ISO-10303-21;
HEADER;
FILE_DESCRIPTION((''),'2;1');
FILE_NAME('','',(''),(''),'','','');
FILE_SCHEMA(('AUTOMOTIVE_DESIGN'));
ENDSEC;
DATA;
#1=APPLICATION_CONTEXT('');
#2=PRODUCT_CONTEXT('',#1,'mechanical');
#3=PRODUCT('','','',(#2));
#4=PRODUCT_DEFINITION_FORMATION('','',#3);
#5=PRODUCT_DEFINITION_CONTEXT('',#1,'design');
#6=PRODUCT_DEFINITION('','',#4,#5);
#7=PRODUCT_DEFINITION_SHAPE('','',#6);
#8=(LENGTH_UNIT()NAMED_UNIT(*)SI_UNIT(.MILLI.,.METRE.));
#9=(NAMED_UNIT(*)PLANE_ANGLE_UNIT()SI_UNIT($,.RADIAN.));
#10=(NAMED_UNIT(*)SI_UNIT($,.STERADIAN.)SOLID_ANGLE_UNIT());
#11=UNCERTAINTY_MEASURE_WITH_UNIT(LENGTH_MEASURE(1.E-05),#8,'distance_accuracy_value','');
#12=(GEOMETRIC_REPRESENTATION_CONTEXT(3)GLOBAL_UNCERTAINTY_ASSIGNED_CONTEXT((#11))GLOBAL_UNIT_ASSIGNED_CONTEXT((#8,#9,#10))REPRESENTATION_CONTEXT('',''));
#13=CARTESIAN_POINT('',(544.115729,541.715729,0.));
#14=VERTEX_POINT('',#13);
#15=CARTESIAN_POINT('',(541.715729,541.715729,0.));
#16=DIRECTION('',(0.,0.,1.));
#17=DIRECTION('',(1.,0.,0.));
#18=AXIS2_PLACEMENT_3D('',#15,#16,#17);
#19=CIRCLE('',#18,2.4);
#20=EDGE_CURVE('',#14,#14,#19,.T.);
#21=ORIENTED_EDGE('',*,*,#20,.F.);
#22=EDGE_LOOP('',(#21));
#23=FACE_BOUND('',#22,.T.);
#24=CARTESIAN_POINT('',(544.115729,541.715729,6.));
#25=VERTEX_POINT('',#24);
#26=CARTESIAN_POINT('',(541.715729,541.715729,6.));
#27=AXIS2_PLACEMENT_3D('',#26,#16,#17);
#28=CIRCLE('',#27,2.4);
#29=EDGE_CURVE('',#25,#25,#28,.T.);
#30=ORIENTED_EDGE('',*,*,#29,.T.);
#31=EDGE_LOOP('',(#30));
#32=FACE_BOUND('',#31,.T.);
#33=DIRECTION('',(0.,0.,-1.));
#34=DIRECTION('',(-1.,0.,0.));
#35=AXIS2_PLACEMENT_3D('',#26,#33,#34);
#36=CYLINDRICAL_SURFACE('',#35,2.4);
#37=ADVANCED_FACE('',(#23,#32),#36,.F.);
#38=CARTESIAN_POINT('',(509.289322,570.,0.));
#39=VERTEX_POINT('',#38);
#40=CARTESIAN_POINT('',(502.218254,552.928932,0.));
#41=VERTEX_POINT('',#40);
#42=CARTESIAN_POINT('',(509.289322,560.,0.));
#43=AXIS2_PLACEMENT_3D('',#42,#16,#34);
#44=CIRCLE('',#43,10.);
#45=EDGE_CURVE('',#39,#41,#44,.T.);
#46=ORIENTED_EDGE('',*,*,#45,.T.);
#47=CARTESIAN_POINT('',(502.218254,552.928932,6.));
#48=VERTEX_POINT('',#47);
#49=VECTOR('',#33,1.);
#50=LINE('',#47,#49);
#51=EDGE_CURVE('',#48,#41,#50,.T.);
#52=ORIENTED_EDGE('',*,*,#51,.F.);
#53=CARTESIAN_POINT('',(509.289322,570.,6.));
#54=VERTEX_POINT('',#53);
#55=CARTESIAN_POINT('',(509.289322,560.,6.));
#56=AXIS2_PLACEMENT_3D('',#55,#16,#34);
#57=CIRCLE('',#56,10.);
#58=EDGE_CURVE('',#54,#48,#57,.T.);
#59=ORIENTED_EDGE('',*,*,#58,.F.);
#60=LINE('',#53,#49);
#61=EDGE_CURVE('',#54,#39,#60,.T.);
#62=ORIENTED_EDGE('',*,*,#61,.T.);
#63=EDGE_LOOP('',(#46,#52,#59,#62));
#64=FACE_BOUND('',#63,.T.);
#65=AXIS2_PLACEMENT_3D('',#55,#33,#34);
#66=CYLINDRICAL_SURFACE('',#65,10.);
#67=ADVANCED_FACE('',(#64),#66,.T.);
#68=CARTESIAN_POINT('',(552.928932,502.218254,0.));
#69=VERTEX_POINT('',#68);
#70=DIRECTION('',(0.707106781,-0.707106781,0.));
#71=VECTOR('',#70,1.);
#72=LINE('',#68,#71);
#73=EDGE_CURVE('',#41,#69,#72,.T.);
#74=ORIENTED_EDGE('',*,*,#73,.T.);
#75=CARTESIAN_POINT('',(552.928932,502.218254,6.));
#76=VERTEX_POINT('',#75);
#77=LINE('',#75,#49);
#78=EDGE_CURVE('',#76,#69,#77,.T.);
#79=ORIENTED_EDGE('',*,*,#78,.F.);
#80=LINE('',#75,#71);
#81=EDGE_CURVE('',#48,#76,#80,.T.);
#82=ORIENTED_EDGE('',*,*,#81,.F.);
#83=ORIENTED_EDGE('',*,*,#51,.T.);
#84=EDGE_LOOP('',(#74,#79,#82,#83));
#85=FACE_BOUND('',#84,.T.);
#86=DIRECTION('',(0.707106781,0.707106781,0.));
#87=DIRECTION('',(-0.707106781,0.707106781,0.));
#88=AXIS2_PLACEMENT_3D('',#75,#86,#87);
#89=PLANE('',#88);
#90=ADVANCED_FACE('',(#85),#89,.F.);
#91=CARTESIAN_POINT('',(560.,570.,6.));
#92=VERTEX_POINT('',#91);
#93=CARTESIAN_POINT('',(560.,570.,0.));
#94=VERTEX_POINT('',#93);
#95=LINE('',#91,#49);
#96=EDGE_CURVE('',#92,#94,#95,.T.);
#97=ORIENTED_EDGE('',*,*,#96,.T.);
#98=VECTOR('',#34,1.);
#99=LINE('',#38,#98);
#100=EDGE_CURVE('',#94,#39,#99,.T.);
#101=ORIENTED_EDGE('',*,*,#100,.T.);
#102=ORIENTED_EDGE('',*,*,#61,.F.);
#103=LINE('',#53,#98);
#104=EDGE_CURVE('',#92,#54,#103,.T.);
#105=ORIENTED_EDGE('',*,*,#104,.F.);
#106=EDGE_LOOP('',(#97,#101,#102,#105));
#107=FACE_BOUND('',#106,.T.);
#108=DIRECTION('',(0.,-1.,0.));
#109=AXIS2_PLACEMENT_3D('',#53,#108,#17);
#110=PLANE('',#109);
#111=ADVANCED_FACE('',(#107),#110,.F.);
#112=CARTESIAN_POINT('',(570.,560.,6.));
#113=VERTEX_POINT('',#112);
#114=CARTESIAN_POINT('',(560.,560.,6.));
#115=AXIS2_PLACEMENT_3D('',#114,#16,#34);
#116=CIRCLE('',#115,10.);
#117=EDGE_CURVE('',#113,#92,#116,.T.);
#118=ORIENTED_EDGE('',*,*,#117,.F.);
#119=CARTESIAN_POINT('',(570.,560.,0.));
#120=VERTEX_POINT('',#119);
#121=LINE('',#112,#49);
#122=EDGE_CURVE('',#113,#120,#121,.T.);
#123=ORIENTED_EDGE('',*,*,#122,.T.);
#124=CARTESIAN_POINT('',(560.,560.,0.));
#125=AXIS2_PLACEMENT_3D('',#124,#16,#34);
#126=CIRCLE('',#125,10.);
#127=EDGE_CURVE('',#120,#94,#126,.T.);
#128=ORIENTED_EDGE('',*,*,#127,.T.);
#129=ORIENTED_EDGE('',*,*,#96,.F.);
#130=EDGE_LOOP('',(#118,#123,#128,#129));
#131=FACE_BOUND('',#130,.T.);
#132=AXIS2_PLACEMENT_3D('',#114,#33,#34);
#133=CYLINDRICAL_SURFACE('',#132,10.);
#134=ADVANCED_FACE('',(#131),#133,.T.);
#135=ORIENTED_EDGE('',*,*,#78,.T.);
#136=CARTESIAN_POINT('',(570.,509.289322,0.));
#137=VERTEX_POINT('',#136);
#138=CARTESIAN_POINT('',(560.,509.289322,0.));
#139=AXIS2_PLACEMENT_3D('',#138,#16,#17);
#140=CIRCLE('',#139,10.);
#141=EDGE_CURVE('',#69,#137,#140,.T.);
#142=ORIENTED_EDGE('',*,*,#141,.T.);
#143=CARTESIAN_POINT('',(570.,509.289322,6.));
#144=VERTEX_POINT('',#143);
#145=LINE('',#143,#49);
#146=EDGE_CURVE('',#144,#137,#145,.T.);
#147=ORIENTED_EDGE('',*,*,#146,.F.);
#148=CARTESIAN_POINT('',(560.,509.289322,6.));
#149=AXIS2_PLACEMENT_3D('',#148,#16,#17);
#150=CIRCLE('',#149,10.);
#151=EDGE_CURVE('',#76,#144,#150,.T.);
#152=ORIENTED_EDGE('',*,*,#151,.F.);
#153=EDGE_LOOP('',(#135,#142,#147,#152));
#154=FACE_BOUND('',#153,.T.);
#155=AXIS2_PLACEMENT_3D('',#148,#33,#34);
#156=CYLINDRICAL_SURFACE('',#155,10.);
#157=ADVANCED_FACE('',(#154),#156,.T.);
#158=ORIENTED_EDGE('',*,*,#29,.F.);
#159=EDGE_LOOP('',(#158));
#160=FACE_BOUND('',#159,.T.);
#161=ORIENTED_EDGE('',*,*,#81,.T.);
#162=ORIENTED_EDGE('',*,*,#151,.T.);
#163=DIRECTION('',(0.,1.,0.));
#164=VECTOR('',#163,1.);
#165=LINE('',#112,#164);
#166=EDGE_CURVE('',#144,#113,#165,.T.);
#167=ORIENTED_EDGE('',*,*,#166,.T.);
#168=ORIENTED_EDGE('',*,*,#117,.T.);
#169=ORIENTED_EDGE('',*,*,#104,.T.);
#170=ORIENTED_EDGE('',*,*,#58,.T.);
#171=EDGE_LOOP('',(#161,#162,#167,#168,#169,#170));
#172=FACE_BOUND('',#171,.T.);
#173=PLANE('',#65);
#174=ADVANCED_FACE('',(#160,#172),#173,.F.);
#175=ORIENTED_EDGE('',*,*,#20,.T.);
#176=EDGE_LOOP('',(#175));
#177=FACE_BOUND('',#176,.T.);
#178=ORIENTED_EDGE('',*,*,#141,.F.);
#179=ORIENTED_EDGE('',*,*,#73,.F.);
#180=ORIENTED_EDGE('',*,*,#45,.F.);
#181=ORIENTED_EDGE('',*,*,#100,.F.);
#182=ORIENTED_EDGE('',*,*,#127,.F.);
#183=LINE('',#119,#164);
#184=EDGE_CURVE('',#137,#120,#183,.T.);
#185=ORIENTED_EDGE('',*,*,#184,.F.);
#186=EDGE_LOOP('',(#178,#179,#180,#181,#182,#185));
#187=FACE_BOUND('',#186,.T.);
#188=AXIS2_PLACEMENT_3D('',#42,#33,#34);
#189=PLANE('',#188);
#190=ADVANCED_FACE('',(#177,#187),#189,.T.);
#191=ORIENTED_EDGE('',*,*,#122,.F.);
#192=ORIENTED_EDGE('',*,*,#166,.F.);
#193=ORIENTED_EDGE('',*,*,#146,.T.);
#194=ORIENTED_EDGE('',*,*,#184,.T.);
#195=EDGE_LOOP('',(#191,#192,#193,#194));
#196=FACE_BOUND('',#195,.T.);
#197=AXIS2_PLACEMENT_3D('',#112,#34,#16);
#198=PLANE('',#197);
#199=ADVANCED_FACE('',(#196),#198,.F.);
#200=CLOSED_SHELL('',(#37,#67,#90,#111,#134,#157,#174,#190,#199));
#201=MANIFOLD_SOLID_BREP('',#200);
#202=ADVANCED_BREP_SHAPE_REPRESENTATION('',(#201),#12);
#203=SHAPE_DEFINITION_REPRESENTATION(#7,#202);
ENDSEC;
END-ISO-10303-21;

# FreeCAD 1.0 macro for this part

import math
import FreeCAD as App
import Part
import Sketcher
Q = App.Units.Quantity

doc = App.newDocument("Part")
body = doc.addObject("PartDesign::Body", "Body")

# Sketch on XY plane
sketch1 = body.newObject("Sketcher::SketchObject", "Sketch")
sketch1.AttachmentSupport = (doc.getObject("XY_Plane"), [""])
sketch1.MapMode = "FlatFace"
sketch1.addGeometry(Part.LineSegment(App.Vector(502.218254, 552.928932, 0), App.Vector(552.928932, 502.218254, 0)), False)
sketch1.addGeometry(Part.ArcOfCircle(Part.Circle(App.Vector(560, 509.289322, 0), App.Vector(0, 0, 1), 10), math.radians(-135), math.radians(0)), False)
sketch1.addGeometry(Part.LineSegment(App.Vector(570, 509.289322, 0), App.Vector(570, 560, 0)), False)
sketch1.addGeometry(Part.ArcOfCircle(Part.Circle(App.Vector(560, 560, 0), App.Vector(0, 0, 1), 10), math.radians(0), math.radians(90)), False)
sketch1.addGeometry(Part.LineSegment(App.Vector(560, 570, 0), App.Vector(509.289322, 570, 0)), False)
sketch1.addGeometry(Part.ArcOfCircle(Part.Circle(App.Vector(509.289322, 560, 0), App.Vector(0, 0, 1), 10), math.radians(90), math.radians(225)), False)
sketch1.addGeometry(Part.Circle(App.Vector(541.715729, 541.715729, 0), App.Vector(0, 0, 1), 2.4), False)
sketch1.addConstraint(Sketcher.Constraint("Tangent", 0, 2, 1, 1))
sketch1.addConstraint(Sketcher.Constraint("Tangent", 1, 2, 2, 1))
sketch1.addConstraint(Sketcher.Constraint("Tangent", 2, 2, 3, 1))
sketch1.addConstraint(Sketcher.Constraint("Tangent", 3, 2, 4, 1))
sketch1.addConstraint(Sketcher.Constraint("Tangent", 4, 2, 5, 1))
sketch1.addConstraint(Sketcher.Constraint("Tangent", 5, 2, 0, 1))
sketch1.addConstraint(Sketcher.Constraint("Vertical", 2))
sketch1.addConstraint(Sketcher.Constraint("Horizontal", 4))
sketch1.addConstraint(Sketcher.Constraint("Equal", 1, 3))
sketch1.addConstraint(Sketcher.Constraint("Equal", 3, 5))
sketch1.addConstraint(Sketcher.Constraint("Equal", 4, 2))
sketch1.addConstraint(Sketcher.Constraint("Radius", 1, Q("10 mm")))
sketch1.addConstraint(Sketcher.Constraint("Diameter", 6, Q("4.8 mm")))
sketch1.addConstraint(Sketcher.Constraint("DistanceX", -1, 1, 1, 3, Q("560 mm")))
sketch1.addConstraint(Sketcher.Constraint("DistanceY", -1, 1, 3, 3, Q("560 mm")))
sketch1.addConstraint(Sketcher.Constraint("DistanceX", 4, 2, 4, 1, Q("50.710678 mm")))
sketch1.addConstraint(Sketcher.Constraint("DistanceX", -1, 1, 6, 3, Q("541.715729 mm")))
sketch1.addConstraint(Sketcher.Constraint("DistanceY", -1, 1, 6, 3, Q("541.715729 mm")))
pad1 = body.newObject("PartDesign::Pad", "Pad")
pad1.Profile = sketch1
pad1.Length = 6

doc.recompute()
